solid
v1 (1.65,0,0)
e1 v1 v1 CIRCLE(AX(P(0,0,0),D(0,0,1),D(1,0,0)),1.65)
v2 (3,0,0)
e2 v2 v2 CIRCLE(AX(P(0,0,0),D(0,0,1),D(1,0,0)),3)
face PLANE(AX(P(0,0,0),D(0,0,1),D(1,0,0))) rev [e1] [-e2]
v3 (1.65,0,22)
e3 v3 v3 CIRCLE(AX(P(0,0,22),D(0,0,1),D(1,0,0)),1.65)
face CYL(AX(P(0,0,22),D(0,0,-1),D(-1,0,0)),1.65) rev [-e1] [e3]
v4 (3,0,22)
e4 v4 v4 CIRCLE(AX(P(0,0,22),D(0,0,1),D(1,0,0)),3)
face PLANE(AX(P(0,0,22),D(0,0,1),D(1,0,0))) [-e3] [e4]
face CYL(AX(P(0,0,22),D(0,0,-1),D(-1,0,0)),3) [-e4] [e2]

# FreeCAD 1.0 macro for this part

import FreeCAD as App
import Part
import Sketcher

V = App.Vector

doc = App.newDocument("Part")
params = doc.addObject("Spreadsheet::Sheet", "Params")
for row, (alias, value) in enumerate([
    ("sketch1_diameter", "6 mm"),
    ("sketch1_diameter2", "3.3 mm"),
    ("pad1_length", "22 mm"),
], start=1):
    params.set(f"A{row}", alias)
    params.set(f"B{row}", "=" + value)
    params.setAlias(f"B{row}", alias)

body = doc.addObject("PartDesign::Body", "Body")

# Sketch on XY plane
sketch1 = body.newObject("Sketcher::SketchObject", "Sketch")
sketch1.AttachmentSupport = (doc.getObject("XY_Plane"), [""])
sketch1.MapMode = "FlatFace"
sketch1.addGeometry([
    Part.Circle(V(0, 0, 0), V(0, 0, 1), 3),
    Part.Circle(V(0, 0, 0), V(0, 0, 1), 1.6),
], False)
sketch1.addConstraint([
    Sketcher.Constraint("Coincident", 0, 3, -1, 1),
    Sketcher.Constraint("Coincident", 1, 3, -1, 1),
    Sketcher.Constraint("Diameter", 0, 6.0),
    Sketcher.Constraint("Diameter", 1, 3.3),
])
sketch1.setExpression("Constraints[2]", "Params.sketch1_diameter")
sketch1.setExpression("Constraints[3]", "Params.sketch1_diameter2")
pad1 = body.newObject("PartDesign::Pad", "Pad")
pad1.Profile = sketch1
pad1.setExpression("Length", "Params.pad1_length")

doc.recompute()
